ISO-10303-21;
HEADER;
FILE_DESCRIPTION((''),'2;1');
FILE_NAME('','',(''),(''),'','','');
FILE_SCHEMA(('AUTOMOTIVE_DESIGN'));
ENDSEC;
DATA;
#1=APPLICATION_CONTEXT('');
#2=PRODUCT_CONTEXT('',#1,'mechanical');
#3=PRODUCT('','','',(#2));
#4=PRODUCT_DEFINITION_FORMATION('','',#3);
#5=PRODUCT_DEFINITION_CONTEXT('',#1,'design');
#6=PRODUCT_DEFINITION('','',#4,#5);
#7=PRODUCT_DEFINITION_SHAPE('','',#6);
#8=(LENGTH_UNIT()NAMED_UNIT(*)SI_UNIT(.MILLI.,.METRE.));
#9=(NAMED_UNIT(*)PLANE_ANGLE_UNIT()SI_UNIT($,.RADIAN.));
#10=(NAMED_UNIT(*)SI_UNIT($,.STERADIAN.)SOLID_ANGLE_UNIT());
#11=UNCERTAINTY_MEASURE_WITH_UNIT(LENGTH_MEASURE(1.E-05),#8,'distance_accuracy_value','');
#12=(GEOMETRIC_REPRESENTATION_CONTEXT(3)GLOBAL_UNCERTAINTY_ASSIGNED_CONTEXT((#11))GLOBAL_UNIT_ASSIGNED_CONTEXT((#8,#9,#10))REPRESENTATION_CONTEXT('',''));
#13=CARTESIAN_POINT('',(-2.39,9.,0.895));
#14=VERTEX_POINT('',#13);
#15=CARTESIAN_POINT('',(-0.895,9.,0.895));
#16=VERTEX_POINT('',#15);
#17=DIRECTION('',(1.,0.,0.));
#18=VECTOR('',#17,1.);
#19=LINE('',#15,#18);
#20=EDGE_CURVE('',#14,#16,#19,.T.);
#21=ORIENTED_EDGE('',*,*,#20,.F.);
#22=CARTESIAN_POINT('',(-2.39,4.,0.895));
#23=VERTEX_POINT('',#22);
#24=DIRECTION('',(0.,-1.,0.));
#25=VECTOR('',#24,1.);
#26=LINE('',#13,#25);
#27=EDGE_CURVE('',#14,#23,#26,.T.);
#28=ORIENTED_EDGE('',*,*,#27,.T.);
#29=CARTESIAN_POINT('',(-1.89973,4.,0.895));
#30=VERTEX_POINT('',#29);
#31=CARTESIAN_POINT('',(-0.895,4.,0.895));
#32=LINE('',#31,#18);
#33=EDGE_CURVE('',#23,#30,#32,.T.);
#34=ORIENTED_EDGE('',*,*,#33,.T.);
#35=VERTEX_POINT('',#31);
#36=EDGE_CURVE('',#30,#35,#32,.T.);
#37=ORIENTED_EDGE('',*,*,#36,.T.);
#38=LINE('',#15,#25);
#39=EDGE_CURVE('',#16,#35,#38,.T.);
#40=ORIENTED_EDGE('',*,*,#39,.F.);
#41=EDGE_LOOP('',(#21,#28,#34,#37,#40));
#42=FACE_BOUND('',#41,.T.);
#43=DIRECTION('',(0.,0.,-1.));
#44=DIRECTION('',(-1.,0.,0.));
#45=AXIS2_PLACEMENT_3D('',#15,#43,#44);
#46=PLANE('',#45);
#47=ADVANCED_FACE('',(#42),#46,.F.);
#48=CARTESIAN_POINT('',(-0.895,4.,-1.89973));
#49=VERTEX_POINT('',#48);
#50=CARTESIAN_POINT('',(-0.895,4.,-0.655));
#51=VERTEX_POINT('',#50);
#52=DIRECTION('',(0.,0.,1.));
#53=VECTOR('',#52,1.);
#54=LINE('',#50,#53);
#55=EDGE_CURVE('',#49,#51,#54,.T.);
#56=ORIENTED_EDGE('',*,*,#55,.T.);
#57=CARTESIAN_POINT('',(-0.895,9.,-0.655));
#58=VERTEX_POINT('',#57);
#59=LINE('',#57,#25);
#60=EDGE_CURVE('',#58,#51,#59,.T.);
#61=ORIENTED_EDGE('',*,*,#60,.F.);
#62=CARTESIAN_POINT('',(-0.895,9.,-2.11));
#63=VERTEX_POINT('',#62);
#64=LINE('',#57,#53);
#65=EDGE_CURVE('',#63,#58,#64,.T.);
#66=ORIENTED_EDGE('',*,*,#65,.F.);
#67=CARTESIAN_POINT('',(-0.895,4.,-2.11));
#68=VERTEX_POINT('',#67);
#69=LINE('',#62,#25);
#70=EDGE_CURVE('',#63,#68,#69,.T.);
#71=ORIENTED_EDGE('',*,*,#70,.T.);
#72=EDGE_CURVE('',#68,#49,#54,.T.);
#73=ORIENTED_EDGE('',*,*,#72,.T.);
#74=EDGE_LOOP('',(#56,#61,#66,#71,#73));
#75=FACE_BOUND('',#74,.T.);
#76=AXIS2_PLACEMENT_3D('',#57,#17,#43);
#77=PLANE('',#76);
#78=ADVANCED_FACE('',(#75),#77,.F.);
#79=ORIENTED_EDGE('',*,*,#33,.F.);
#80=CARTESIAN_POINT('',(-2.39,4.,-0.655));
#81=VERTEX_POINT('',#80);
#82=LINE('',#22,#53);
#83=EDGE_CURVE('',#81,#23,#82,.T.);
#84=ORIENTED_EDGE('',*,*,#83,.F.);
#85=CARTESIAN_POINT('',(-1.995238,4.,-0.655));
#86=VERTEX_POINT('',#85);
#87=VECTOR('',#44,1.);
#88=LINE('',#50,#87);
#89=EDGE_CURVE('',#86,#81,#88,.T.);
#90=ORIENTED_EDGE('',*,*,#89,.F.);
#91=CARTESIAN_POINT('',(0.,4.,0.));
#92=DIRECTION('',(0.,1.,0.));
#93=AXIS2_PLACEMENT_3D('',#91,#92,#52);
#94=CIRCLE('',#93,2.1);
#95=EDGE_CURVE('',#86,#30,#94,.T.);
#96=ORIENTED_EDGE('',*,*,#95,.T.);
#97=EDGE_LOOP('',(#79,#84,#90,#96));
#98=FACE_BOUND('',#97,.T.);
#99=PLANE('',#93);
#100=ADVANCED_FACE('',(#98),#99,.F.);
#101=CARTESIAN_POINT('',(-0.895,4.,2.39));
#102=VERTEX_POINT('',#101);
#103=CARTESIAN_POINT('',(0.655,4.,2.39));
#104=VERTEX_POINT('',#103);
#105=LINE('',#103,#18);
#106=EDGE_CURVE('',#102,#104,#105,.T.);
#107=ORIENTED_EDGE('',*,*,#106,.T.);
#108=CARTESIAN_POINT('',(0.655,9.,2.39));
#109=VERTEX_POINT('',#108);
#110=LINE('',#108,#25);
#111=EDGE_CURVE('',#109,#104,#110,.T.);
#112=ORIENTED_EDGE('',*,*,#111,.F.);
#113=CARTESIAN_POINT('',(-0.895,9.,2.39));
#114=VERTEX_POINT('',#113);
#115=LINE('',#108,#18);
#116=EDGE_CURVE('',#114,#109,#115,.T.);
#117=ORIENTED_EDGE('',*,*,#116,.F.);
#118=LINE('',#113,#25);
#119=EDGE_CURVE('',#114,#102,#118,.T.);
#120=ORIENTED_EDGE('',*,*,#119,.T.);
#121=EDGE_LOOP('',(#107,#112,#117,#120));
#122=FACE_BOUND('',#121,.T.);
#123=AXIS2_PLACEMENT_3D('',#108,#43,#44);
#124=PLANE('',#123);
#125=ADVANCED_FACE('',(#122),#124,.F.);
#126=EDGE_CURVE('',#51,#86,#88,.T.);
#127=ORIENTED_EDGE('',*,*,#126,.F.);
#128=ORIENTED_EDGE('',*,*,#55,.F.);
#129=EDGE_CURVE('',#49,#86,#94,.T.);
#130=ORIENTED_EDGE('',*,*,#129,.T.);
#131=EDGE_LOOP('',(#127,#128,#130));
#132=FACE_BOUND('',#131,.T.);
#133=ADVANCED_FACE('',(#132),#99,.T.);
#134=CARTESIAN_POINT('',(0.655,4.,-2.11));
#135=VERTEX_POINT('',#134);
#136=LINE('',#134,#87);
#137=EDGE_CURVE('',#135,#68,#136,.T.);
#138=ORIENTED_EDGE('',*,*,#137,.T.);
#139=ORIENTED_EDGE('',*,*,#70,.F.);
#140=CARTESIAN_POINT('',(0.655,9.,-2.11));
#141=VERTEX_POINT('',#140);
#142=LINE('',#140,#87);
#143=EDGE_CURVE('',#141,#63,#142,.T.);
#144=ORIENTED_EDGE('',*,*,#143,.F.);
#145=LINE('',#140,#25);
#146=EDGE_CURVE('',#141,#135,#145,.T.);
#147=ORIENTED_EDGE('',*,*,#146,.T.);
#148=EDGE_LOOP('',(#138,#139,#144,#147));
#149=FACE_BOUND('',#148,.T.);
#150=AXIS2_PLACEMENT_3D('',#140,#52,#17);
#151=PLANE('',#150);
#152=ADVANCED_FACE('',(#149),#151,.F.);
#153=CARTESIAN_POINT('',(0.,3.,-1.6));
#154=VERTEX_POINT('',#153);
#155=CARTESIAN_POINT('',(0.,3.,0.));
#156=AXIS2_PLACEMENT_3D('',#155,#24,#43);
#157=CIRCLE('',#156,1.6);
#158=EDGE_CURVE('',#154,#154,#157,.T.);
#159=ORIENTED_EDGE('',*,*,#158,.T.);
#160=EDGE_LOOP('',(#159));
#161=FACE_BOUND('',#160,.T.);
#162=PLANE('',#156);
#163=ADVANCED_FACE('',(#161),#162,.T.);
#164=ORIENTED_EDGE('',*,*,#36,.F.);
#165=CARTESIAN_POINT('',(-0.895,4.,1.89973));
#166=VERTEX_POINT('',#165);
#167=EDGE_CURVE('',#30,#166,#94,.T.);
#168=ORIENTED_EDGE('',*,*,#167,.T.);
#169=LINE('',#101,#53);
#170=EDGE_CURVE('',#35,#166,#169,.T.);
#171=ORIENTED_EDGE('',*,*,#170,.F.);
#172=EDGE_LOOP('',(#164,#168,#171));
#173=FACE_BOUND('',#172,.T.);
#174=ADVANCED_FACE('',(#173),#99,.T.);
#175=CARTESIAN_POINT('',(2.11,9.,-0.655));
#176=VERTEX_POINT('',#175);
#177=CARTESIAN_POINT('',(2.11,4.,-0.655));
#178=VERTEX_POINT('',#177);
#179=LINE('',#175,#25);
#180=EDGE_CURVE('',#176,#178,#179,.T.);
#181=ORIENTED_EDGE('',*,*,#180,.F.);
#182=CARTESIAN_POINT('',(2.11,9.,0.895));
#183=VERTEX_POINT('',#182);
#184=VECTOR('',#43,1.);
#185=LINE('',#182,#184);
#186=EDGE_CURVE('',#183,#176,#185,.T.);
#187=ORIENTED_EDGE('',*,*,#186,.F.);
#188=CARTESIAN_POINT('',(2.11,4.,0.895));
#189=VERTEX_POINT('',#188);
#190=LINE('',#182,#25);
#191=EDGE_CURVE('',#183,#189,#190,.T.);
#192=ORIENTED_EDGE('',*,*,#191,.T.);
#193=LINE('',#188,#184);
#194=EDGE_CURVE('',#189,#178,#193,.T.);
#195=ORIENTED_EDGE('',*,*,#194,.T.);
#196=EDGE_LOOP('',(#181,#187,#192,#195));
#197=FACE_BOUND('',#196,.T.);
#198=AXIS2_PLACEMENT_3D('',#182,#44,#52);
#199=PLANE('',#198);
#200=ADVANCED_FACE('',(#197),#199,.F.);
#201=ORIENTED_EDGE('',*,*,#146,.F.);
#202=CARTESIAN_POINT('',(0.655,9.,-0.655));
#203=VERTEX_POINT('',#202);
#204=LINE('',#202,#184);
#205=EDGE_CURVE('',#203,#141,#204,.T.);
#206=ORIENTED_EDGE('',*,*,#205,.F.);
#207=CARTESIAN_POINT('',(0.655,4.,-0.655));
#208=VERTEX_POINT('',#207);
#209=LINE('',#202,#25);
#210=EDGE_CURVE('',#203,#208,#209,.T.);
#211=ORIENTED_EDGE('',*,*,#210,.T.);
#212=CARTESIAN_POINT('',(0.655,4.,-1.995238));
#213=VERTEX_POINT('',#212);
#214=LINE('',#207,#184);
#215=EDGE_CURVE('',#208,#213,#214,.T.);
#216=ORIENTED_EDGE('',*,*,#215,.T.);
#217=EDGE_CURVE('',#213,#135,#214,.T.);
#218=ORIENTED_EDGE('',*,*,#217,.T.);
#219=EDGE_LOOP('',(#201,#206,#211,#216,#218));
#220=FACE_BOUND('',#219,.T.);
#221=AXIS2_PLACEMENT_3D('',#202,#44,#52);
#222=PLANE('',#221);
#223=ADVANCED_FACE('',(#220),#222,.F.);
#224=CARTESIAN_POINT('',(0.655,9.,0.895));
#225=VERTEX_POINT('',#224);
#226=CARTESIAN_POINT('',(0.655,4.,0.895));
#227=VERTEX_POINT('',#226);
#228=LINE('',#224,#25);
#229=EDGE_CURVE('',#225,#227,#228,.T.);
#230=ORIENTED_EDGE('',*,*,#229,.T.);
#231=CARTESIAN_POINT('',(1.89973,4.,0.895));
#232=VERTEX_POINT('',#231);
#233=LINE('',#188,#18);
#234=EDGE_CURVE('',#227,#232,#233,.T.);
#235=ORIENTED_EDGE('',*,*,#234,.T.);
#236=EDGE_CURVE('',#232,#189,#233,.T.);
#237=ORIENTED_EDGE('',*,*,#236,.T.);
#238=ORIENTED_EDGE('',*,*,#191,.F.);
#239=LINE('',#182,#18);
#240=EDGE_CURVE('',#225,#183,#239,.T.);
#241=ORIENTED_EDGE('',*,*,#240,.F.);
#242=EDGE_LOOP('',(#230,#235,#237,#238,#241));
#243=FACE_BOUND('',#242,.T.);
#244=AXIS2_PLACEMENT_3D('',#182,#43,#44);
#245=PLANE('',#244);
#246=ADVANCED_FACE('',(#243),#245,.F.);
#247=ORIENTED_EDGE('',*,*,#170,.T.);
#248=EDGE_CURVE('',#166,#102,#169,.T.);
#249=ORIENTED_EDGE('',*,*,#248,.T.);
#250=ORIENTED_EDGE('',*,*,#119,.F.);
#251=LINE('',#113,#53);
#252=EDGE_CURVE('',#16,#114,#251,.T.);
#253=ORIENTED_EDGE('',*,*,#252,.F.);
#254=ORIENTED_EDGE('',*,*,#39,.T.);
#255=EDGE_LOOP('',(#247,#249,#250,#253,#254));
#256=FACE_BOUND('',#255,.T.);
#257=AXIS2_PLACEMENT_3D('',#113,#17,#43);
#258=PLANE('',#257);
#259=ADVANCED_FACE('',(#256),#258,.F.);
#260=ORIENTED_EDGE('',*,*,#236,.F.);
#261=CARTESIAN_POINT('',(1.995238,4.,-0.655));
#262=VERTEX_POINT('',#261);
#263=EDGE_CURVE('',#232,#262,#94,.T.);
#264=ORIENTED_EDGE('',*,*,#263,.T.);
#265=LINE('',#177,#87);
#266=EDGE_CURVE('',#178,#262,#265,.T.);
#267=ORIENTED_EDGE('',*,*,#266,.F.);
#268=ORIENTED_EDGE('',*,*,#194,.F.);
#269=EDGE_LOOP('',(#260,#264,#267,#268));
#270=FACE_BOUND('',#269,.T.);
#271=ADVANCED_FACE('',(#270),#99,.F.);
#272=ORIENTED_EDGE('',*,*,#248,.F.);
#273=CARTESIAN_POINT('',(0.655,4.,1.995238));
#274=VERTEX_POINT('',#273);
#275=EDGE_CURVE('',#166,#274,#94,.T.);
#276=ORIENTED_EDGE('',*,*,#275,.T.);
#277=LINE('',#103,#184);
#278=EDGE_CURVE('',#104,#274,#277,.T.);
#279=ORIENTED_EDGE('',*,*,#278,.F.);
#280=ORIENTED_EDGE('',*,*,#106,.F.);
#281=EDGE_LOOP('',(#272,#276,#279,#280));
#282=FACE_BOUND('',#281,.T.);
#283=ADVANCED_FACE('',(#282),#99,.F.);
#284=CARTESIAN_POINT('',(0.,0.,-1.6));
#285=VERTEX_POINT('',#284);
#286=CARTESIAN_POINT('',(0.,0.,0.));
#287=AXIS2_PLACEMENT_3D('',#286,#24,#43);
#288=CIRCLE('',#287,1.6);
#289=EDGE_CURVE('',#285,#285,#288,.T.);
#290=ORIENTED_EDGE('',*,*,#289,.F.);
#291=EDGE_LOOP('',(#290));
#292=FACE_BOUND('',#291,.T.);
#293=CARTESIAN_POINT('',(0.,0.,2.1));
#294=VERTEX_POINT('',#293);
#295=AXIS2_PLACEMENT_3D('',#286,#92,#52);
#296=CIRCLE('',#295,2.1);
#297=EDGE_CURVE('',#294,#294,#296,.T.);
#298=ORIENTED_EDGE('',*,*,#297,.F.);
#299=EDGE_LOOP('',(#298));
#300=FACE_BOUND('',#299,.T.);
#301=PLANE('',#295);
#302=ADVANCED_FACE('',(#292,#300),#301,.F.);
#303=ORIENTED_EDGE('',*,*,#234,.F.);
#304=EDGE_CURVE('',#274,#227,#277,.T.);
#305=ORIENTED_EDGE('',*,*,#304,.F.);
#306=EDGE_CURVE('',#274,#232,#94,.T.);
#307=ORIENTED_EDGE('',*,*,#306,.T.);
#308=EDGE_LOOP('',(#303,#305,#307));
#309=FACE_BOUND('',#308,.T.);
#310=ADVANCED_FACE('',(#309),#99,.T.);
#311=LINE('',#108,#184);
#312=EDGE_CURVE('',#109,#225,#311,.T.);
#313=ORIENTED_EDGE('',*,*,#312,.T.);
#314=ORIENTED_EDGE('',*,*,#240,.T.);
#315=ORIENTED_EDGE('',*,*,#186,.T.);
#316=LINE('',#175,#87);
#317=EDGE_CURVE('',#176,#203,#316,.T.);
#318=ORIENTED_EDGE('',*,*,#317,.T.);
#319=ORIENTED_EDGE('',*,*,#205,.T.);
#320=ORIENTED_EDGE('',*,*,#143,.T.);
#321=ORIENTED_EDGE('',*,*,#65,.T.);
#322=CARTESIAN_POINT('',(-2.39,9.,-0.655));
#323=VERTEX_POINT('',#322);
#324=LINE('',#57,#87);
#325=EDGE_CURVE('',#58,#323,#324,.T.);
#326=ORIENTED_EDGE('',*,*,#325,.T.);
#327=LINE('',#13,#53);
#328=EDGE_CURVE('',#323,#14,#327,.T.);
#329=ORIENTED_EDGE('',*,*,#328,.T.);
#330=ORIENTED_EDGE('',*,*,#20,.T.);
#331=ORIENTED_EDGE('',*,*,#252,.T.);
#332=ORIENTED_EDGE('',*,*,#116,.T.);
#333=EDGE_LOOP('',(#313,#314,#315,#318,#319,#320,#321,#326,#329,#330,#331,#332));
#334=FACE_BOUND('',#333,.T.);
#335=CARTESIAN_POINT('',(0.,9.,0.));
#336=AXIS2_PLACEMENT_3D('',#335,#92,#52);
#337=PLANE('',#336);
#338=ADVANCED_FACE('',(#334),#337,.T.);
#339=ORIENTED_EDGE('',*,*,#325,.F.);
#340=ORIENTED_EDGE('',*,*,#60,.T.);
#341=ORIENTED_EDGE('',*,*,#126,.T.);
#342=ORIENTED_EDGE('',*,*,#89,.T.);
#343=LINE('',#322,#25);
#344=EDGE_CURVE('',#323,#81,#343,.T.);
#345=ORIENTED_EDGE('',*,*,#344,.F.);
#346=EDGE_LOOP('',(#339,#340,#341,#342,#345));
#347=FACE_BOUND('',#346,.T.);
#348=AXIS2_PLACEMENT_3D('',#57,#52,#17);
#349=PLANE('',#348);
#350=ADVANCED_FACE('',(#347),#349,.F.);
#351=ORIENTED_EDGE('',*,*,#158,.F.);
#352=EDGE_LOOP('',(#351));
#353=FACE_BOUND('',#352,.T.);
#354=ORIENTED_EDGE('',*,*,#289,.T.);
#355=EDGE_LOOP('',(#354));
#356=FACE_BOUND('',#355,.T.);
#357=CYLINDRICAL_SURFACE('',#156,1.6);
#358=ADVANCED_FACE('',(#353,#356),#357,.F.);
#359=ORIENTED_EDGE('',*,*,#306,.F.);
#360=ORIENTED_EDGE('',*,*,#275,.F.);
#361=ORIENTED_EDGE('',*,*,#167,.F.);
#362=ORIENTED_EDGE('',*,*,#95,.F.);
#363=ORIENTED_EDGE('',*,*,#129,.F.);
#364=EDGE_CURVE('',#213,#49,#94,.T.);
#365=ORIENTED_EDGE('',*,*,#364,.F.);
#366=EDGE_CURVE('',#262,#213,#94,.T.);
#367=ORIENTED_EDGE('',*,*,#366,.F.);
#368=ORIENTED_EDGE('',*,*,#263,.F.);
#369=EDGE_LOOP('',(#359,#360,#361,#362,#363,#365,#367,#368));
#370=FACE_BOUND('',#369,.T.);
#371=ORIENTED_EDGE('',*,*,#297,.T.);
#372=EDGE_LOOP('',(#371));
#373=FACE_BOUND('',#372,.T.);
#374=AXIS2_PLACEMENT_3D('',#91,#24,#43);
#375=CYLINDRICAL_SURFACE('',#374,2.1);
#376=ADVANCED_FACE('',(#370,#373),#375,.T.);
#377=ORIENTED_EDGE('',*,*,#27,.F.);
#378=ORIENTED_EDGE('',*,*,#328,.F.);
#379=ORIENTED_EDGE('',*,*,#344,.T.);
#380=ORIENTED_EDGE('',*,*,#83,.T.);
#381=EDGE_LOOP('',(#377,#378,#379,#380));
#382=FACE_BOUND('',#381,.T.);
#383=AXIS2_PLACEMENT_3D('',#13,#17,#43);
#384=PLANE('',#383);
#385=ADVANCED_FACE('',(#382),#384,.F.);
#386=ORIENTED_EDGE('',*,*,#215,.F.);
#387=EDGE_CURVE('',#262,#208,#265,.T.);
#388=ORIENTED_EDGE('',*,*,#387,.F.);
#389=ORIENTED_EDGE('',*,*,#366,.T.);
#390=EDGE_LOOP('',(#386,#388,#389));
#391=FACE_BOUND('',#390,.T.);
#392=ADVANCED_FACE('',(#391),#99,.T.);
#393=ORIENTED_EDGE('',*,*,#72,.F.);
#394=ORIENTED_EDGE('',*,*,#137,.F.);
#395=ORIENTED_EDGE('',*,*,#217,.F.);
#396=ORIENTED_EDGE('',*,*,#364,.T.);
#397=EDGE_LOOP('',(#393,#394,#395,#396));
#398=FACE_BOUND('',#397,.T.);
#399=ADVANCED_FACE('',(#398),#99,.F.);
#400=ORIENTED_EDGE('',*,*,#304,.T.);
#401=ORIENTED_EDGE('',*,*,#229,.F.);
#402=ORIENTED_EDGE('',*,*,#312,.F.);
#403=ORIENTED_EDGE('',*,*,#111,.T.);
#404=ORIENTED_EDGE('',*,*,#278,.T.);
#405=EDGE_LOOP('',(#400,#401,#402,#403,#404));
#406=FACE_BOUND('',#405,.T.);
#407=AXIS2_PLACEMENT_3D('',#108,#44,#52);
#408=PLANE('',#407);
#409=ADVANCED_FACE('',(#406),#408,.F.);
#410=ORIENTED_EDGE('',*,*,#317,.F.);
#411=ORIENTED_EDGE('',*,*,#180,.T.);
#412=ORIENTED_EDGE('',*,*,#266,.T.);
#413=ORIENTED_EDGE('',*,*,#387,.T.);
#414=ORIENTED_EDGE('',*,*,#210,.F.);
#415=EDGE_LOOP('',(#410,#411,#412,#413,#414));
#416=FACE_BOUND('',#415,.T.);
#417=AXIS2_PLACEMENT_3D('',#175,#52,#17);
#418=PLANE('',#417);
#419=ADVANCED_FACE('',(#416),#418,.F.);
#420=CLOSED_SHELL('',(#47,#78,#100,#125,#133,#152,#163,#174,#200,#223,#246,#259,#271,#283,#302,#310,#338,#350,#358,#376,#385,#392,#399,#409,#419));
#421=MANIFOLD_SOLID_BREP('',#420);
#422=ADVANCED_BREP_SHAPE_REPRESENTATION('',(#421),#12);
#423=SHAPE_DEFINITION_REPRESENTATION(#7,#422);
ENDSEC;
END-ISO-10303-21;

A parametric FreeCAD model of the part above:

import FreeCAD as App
import Part
import Sketcher
Q = App.Units.Quantity


def add_polygon(sketch, points):
    """Adds a closed chain of lines whose ends are joined by coincident constraints."""
    first, n = sketch.GeometryCount, len(points)
    for a, b in zip(points, points[1:] + points[:1]):
        sketch.addGeometry(Part.LineSegment(App.Vector(*a, 0), App.Vector(*b, 0)), False)
    for i in range(n):
        sketch.addConstraint(Sketcher.Constraint("Coincident", first + i, 2, first + (i + 1) % n, 1))

doc = App.newDocument("Part")
body = doc.addObject("PartDesign::Body", "Body")

# Sketch on XZ plane
sketch1 = body.newObject("Sketcher::SketchObject", "Sketch")
sketch1.AttachmentSupport = (doc.getObject("XZ_Plane"), [""])
sketch1.MapMode = "FlatFace"
sketch1.addGeometry(Part.Circle(App.Vector(0, 0, 0), App.Vector(0, 0, 1), 2.1), False)
sketch1.addConstraint([
    Sketcher.Constraint("Coincident", 0, 3, -1, 1),
    Sketcher.Constraint("Diameter", 0, Q("4.2 mm")),
])
pad1 = body.newObject("PartDesign::Pad", "Pad")
pad1.Profile = sketch1
pad1.Length = 4
pad1.Reversed = True

# Sketch on XZ plane
sketch2 = body.newObject("Sketcher::SketchObject", "Sketch001")
sketch2.AttachmentSupport = (doc.getObject("XZ_Plane"), [""])
sketch2.MapMode = "FlatFace"
sketch2.addGeometry(Part.Circle(App.Vector(0, 0, 0), App.Vector(0, 0, 1), 1.6), False)
sketch2.addConstraint([
    Sketcher.Constraint("Coincident", 0, 3, -1, 1),
    Sketcher.Constraint("Diameter", 0, Q("3.2 mm")),
])
pocket1 = body.newObject("PartDesign::Pocket", "Pocket")
pocket1.Profile = sketch2
pocket1.Length = 3

# Sketch on XZ plane
sketch3 = body.newObject("Sketcher::SketchObject", "Sketch002")
sketch3.AttachmentSupport = (doc.getObject("XZ_Plane"), [""])
sketch3.MapMode = "FlatFace"
sketch3.AttachmentOffset = App.Placement(App.Vector(0, 0, -4), App.Rotation())
add_polygon(sketch3, [(-0.9, -0.7), (-2.4, -0.7), (-2.4, 0.9), (-0.9, 0.9), (-0.9, 2.4), (0.7, 2.4), (0.7, 0.9), (2.1, 0.9), (2.1, -0.7), (0.7, -0.7), (0.7, -2.1), (-0.9, -2.1)])  # lines 0-11
sketch3.addConstraint([
    Sketcher.Constraint("Horizontal", 0),
    Sketcher.Constraint("Vertical", 1),
    Sketcher.Constraint("Horizontal", 2),
    Sketcher.Constraint("Vertical", 3),
    Sketcher.Constraint("Horizontal", 4),
    Sketcher.Constraint("Vertical", 5),
    Sketcher.Constraint("Horizontal", 6),
    Sketcher.Constraint("Vertical", 7),
    Sketcher.Constraint("Horizontal", 8),
    Sketcher.Constraint("Vertical", 9),
    Sketcher.Constraint("Horizontal", 10),
    Sketcher.Constraint("Vertical", 11),
    Sketcher.Constraint("Horizontal", 2, 2, 5, 2),
    Sketcher.Constraint("Horizontal", 0, 2, 7, 2),
    Sketcher.Constraint("Vertical", 5, 2, 8, 2),
    Sketcher.Constraint("Vertical", 3, 2, 10, 2),
    Sketcher.Constraint("Equal", 10, 1),
    Sketcher.Constraint("Equal", 2, 3),
    Sketcher.Constraint("Equal", 8, 9),
    Sketcher.Constraint("DistanceX", 4, 1, 4, 2, Q("1.55 mm")),
    Sketcher.Constraint("DistanceX", 1, 2, 6, 2, Q("4.5 mm")),
    Sketcher.Constraint("DistanceX", 0, 2, 0, 1, Q("1.495 mm")),
    Sketcher.Constraint("DistanceX", 0, 2, -1, 1, Q("2.39 mm")),
    Sketcher.Constraint("DistanceY", -1, 1, 3, 2, Q("2.39 mm")),
])
pad2 = body.newObject("PartDesign::Pad", "Pad001")
pad2.Profile = sketch3
pad2.Length = 5
pad2.Reversed = True

doc.recompute()
